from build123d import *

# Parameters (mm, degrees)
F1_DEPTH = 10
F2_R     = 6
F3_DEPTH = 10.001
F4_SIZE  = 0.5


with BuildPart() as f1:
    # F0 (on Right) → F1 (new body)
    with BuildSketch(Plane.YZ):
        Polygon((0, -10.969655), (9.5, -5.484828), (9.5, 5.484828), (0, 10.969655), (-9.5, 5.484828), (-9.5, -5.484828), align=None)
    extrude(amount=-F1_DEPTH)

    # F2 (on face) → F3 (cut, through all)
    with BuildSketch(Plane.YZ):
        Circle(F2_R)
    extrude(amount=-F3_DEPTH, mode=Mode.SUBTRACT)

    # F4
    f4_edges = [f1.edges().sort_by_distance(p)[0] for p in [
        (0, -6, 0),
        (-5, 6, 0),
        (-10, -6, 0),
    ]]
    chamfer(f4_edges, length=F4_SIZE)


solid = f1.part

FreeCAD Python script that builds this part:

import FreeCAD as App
import Part
import Sketcher
Q = App.Units.Quantity


def edges_at(feature, points):
    """Names of the edges that pass closest to the given points."""
    edges = feature.Shape.Edges
    near = lambda p: min(range(len(edges)), key=lambda i: edges[i].distToShape(Part.Vertex(*p))[0])
    return sorted({f"Edge{near(p) + 1}" for p in points})


def add_polygon(sketch, points):
    """Adds a closed chain of lines whose ends are joined by coincident constraints."""
    first, n = sketch.GeometryCount, len(points)
    for a, b in zip(points, points[1:] + points[:1]):
        sketch.addGeometry(Part.LineSegment(App.Vector(*a, 0), App.Vector(*b, 0)), False)
    for i in range(n):
        sketch.addConstraint(Sketcher.Constraint("Coincident", first + i, 2, first + (i + 1) % n, 1))

doc = App.newDocument("Part")
params = doc.addObject("Spreadsheet::Sheet", "Params")
for row, (alias, value) in enumerate([
    ("pad1_length", "10 mm"),
    ("sketch2_diameter", "12 mm"),
    ("chamfer_size", "0.5 mm"),
], start=1):
    params.set(f"A{row}", alias)
    params.set(f"B{row}", "=" + value)
    params.setAlias(f"B{row}", alias)

body = doc.addObject("PartDesign::Body", "Body")

# Sketch on YZ plane
sketch1 = doc.addObject("Sketcher::SketchObject", "Sketch")
body.addObject(sketch1)
sketch1.AttachmentSupport = (doc.YZ_Plane, [""])
sketch1.MapMode = "FlatFace"
add_polygon(sketch1, [(0, -11), (10, -5), (10, 5), (0, 11), (-10, 5), (-10, -5)])  # lines 0-5
sketch1.addConstraint([
    Sketcher.Constraint("Vertical", 1),
    Sketcher.Constraint("Vertical", 4),
    Sketcher.Constraint("Symmetric", 0, 2, 3, 2, -1, 1),
    Sketcher.Constraint("Symmetric", 2, 2, 5, 2, -1, 1),
    Sketcher.Constraint("PointOnObject", 2, 2, -2),
    Sketcher.Constraint("Parallel", 2, 5),
    Sketcher.Constraint("Horizontal", 1, 2, 3, 2),
    Sketcher.Constraint("Angle", 0, Q("29.999997 deg")),
    Sketcher.Constraint("DistanceX", 3, 2, 1, 2, 19.0),
    Sketcher.Constraint("DistanceY", 1, 1, 1, 2, 10.969656),
])
pad1 = doc.addObject("PartDesign::Pad", "Pad")
body.addObject(pad1)
pad1.Profile = sketch1
pad1.setExpression("Length", "Params.pad1_length")
pad1.Reversed = True

# Sketch on YZ plane
sketch2 = doc.addObject("Sketcher::SketchObject", "Sketch001")
body.addObject(sketch2)
sketch2.AttachmentSupport = (doc.YZ_Plane, [""])
sketch2.MapMode = "FlatFace"
sketch2.addGeometry(Part.Circle(App.Vector(0, 0, 0), App.Vector(0, 0, 1), 6), False)
sketch2.addConstraint([
    Sketcher.Constraint("Coincident", 0, 3, -1, 1),
    Sketcher.Constraint("Diameter", 0, 12.0),
])
sketch2.setExpression("Constraints[1]", "Params.sketch2_diameter")
pocket1 = doc.addObject("PartDesign::Pocket", "Pocket")
body.addObject(pocket1)
pocket1.Profile = sketch2
pocket1.Type = "ThroughAll"
doc.recompute()

chamfer = doc.addObject("PartDesign::Chamfer", "Chamfer")
body.addObject(chamfer)
chamfer.Base = (pocket1, edges_at(pocket1, [(0, -6, 0), (-5, 6, 0), (-10, -6, 0)]))
chamfer.setExpression("Size", "Params.chamfer_size")

doc.recompute()
